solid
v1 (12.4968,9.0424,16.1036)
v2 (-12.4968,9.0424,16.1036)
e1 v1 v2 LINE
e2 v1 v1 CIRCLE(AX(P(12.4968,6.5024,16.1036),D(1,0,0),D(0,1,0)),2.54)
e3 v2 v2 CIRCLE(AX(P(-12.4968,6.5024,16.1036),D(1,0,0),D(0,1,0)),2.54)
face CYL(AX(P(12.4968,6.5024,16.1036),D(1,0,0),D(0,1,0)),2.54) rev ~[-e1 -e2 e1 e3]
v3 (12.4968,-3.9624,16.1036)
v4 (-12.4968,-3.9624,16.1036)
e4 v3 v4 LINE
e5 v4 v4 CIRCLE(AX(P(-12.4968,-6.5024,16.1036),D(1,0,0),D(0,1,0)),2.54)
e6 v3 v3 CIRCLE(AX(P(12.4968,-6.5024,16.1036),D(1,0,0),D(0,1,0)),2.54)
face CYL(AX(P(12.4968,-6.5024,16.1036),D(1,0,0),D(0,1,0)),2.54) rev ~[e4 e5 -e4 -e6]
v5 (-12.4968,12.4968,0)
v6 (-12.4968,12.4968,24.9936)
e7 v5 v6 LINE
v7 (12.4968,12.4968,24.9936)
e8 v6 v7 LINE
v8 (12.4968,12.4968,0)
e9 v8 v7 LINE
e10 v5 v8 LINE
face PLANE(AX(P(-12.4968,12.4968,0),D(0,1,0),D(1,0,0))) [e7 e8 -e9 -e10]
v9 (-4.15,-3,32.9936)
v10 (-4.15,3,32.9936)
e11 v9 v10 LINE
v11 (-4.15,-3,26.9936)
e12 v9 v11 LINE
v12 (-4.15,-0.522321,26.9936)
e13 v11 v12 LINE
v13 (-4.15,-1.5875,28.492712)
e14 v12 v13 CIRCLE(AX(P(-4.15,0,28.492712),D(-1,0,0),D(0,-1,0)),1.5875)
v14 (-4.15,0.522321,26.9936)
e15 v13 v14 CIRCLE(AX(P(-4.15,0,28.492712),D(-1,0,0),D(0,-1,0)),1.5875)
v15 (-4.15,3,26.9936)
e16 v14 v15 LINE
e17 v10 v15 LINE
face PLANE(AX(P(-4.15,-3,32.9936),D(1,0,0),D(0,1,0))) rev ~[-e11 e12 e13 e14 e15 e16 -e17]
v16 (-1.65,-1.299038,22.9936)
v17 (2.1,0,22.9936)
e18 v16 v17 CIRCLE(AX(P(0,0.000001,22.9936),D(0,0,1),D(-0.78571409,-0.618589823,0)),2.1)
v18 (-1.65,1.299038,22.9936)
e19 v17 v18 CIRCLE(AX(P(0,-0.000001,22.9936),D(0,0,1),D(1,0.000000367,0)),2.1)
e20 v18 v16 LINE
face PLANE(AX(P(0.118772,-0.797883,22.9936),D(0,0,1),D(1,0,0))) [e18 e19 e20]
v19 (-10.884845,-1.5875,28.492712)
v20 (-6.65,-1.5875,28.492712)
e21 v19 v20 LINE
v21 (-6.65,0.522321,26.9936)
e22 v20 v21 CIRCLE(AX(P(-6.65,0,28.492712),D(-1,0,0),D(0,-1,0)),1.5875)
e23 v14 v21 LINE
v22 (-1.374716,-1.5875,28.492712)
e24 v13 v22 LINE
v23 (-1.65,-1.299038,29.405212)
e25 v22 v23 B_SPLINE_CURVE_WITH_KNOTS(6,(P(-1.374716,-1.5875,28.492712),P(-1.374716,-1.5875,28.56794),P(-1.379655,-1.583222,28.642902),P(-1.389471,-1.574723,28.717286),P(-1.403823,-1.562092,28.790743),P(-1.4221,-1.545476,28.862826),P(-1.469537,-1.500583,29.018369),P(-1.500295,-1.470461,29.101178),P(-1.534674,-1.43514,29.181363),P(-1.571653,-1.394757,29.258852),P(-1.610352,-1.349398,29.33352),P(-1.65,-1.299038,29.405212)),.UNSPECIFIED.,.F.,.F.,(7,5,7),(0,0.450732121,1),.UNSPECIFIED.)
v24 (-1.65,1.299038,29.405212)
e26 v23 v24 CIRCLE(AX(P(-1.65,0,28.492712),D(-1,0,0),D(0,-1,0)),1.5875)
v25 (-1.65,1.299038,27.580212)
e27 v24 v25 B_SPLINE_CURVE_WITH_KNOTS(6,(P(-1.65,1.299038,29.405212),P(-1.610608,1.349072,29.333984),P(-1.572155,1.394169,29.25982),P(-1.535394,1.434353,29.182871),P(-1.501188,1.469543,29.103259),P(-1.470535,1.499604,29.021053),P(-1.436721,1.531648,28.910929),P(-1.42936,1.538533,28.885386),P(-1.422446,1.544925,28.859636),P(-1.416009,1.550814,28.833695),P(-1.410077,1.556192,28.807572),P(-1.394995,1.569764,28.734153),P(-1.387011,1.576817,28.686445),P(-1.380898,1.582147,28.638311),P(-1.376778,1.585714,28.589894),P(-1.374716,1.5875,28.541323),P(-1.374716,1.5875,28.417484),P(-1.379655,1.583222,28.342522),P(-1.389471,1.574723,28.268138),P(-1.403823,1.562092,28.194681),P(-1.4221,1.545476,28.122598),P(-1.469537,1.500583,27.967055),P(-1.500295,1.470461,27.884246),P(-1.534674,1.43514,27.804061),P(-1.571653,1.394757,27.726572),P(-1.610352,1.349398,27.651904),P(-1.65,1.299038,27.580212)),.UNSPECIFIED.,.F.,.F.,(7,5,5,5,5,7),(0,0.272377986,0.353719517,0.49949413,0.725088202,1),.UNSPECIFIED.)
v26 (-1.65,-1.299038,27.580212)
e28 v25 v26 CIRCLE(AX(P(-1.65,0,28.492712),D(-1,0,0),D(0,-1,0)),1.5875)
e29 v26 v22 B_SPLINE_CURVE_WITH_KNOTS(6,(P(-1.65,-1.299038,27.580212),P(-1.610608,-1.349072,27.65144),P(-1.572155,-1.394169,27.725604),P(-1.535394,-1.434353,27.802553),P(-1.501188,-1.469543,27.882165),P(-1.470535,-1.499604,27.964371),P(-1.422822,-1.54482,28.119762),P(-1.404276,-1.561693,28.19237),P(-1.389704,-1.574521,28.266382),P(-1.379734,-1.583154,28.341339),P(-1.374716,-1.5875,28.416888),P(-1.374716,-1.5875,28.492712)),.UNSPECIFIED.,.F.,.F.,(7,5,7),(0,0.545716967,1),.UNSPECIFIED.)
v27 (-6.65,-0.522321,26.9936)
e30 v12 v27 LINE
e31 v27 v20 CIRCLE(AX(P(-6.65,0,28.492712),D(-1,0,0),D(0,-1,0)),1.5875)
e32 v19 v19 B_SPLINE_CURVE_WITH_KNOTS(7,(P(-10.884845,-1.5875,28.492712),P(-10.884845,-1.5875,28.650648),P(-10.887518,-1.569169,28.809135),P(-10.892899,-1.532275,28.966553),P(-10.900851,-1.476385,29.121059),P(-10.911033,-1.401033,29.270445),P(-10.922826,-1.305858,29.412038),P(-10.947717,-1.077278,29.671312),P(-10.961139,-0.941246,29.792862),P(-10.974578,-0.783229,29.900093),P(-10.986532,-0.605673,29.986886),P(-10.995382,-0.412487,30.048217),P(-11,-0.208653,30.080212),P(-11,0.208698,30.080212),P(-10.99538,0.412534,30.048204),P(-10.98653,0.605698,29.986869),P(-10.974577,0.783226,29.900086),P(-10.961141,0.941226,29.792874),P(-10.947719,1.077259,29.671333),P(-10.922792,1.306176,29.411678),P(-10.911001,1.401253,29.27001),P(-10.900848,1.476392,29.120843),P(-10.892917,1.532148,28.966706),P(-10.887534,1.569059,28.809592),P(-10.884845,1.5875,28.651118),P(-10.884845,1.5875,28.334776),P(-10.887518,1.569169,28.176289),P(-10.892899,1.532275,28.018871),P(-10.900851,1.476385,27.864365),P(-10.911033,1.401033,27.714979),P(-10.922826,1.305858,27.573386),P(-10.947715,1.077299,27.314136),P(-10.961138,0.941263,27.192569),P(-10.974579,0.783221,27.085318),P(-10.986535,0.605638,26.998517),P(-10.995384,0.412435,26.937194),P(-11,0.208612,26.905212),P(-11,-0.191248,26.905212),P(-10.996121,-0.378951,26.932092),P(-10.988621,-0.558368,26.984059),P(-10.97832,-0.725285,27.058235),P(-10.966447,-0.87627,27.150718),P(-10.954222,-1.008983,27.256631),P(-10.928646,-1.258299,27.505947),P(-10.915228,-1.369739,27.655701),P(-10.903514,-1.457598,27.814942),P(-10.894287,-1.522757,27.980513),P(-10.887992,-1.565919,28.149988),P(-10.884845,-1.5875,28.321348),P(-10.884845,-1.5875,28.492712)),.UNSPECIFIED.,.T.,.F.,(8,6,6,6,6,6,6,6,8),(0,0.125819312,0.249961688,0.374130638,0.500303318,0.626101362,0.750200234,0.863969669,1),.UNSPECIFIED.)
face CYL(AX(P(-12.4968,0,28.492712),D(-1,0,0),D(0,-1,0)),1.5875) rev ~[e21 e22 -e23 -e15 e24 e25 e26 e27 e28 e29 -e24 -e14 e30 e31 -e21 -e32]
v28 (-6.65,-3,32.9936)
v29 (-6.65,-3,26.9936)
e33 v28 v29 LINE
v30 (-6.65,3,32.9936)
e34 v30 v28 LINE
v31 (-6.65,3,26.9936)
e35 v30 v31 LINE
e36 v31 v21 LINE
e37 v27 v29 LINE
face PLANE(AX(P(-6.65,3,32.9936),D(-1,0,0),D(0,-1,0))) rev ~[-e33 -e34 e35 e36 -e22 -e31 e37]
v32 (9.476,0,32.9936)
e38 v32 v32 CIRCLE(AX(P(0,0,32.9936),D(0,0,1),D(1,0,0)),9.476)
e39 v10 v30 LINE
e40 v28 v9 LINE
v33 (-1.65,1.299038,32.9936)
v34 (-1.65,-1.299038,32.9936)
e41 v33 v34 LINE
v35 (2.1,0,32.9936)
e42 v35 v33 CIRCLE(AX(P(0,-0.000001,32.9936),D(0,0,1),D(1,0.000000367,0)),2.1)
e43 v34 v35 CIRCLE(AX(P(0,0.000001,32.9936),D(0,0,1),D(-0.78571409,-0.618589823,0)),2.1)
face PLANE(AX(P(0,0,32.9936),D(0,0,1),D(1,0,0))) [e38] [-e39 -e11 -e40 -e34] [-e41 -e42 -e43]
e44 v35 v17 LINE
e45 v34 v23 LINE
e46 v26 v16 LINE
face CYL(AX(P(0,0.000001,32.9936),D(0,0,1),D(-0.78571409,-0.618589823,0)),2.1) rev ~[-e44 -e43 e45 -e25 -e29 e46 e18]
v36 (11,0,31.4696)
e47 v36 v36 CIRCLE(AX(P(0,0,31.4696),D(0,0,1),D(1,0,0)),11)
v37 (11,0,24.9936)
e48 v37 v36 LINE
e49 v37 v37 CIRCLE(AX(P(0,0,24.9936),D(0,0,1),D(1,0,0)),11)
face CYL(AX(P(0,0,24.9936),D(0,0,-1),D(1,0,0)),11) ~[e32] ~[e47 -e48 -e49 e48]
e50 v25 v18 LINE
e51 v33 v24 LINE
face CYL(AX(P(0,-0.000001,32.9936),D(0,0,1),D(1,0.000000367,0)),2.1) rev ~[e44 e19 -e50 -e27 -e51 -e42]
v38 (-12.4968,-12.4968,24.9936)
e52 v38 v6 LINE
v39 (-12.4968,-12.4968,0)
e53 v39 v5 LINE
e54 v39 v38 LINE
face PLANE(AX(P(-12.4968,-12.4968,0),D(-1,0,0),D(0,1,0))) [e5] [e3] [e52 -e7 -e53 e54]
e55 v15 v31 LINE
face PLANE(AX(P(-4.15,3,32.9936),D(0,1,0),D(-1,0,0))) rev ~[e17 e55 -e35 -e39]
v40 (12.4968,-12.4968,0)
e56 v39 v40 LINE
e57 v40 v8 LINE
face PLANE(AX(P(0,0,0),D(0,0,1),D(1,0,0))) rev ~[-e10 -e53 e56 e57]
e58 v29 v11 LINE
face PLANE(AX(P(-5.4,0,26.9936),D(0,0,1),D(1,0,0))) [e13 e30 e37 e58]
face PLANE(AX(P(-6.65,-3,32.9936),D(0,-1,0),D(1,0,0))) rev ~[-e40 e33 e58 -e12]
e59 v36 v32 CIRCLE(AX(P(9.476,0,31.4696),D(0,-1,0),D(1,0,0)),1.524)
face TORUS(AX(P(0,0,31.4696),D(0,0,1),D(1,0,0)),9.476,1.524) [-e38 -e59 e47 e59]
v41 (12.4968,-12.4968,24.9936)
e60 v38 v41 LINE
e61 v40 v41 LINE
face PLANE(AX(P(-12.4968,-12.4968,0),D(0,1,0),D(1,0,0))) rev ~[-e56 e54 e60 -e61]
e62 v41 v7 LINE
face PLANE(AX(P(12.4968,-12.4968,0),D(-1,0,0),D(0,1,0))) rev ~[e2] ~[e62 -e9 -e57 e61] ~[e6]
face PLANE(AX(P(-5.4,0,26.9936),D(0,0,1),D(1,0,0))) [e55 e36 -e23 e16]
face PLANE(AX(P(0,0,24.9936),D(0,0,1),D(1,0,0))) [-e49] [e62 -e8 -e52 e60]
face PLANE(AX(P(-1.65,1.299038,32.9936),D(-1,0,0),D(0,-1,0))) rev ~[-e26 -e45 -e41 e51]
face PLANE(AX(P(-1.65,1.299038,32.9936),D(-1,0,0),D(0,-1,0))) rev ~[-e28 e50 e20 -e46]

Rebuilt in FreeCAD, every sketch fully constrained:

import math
import FreeCAD as App
import Part
import Sketcher


def edges_at(feature, points):
    """Names of the edges that pass closest to the given points."""
    edges = feature.Shape.Edges
    near = lambda p: min(range(len(edges)), key=lambda i: edges[i].distToShape(Part.Vertex(*p))[0])
    return sorted({f"Edge{near(p) + 1}" for p in points})

doc = App.newDocument("Part")
params = doc.addObject("Spreadsheet::Sheet", "Params")
for row, (alias, value) in enumerate([
    ("pad1_length", "24.9936 mm"),
    ("sketch2_diameter", "22 mm"),
    ("pad2_length", "8 mm"),
    ("fillet_radius", "1.524 mm"),
    ("sketch3_radius", "2.1 mm"),
    ("pocket1_length", "10 mm"),
    ("sketch4_height", "6 mm"),
    ("sketch4_width", "2.5 mm"),
    ("pocket2_length", "6 mm"),
    ("pocket3_length", "11.684 mm"),
    ("sketch6_diameter", "5.08 mm"),
    ("pocket4_length", "25.4 mm"),
], start=1):
    params.set(f"A{row}", alias)
    params.set(f"B{row}", "=" + value)
    params.setAlias(f"B{row}", alias)

body = doc.addObject("PartDesign::Body", "Body")

sketch1 = body.newObject("Sketcher::SketchObject", "Sketch")
sketch1.AttachmentSupport = (doc.getObject("XY_Plane"), [""])
sketch1.MapMode = "FlatFace"
sketch1.addGeometry([
    Part.LineSegment(App.Vector(-12, 12, 0), App.Vector(-12, -12, 0)),
    Part.LineSegment(App.Vector(-12, -12, 0), App.Vector(12, -12, 0)),
    Part.LineSegment(App.Vector(12, -12, 0), App.Vector(12, 12, 0)),
    Part.LineSegment(App.Vector(12, 12, 0), App.Vector(-12, 12, 0)),
], False)
sketch1.addConstraint([
    Sketcher.Constraint("Coincident", 0, 2, 1, 1),
    Sketcher.Constraint("Coincident", 1, 2, 2, 1),
    Sketcher.Constraint("Coincident", 2, 2, 3, 1),
    Sketcher.Constraint("Coincident", 3, 2, 0, 1),
    Sketcher.Constraint("Vertical", 0),
    Sketcher.Constraint("Horizontal", 1),
    Sketcher.Constraint("Vertical", 2),
    Sketcher.Constraint("Horizontal", 3),
    Sketcher.Constraint("Symmetric", 0, 2, 2, 2, -1, 1),
    Sketcher.Constraint("Equal", 3, 0),
    Sketcher.Constraint("DistanceX", 1, 1, 1, 2, 24.9936),
])
pad1 = body.newObject("PartDesign::Pad", "Pad")
pad1.Profile = sketch1
pad1.setExpression("Length", "Params.pad1_length")

sketch2 = body.newObject("Sketcher::SketchObject", "Sketch001")
sketch2.AttachmentSupport = (doc.getObject("XY_Plane"), [""])
sketch2.MapMode = "FlatFace"
sketch2.AttachmentOffset = App.Placement(App.Vector(0, 0, 24.9936), App.Rotation())
sketch2.addGeometry(Part.Circle(App.Vector(0, 0, 0), App.Vector(0, 0, 1), 11), False)
sketch2.addConstraint([
    Sketcher.Constraint("Coincident", 0, 3, -1, 1),
    Sketcher.Constraint("Diameter", 0, 22.0),
])
sketch2.setExpression("Constraints[1]", "Params.sketch2_diameter")
pad2 = body.newObject("PartDesign::Pad", "Pad001")
pad2.Profile = sketch2
pad2.setExpression("Length", "Params.pad2_length")
doc.recompute()

fillet = body.newObject("PartDesign::Fillet", "Fillet")
fillet.Base = (pad2, edges_at(pad2, [(-11, 0, 32.994)]))
fillet.setExpression("Radius", "Params.fillet_radius")

sketch3 = body.newObject("Sketcher::SketchObject", "Sketch002")
sketch3.AttachmentSupport = (doc.getObject("XY_Plane"), [""])
sketch3.MapMode = "FlatFace"
sketch3.AttachmentOffset = App.Placement(App.Vector(0, 0, 32.9936), App.Rotation())
sketch3.addGeometry([
    Part.ArcOfCircle(Part.Circle(App.Vector(0, 0, 0), App.Vector(0, 0, 1), 2.1), math.radians(-142), math.radians(0)),
    Part.ArcOfCircle(Part.Circle(App.Vector(0, 0, 0), App.Vector(0, 0, 1), 2.1), math.radians(0), math.radians(142)),
    Part.LineSegment(App.Vector(-1.6, 1.3, 0), App.Vector(-1.6, -1.3, 0)),
], False)
sketch3.addConstraint([
    Sketcher.Constraint("Tangent", 0, 2, 1, 1),
    Sketcher.Constraint("Coincident", 1, 2, 2, 1),
    Sketcher.Constraint("Coincident", 2, 2, 0, 1),
    Sketcher.Constraint("Vertical", 2),
    Sketcher.Constraint("Coincident", 0, 3, -1, 1),
    Sketcher.Constraint("Equal", 0, 1),
    Sketcher.Constraint("PointOnObject", 0, 2, -1),
    Sketcher.Constraint("Radius", 0, 2.1),
    Sketcher.Constraint("DistanceX", 1, 2, -1, 1, 1.65),
])
sketch3.setExpression("Constraints[7]", "Params.sketch3_radius")
pocket1 = body.newObject("PartDesign::Pocket", "Pocket")
pocket1.Profile = sketch3
pocket1.setExpression("Length", "Params.pocket1_length")

sketch4 = body.newObject("Sketcher::SketchObject", "Sketch003")
sketch4.AttachmentSupport = (doc.getObject("XY_Plane"), [""])
sketch4.MapMode = "FlatFace"
sketch4.AttachmentOffset = App.Placement(App.Vector(0, 0, 32.9936), App.Rotation())
sketch4.addGeometry([
    Part.LineSegment(App.Vector(-4.2, 3, 0), App.Vector(-6.7, 3, 0)),
    Part.LineSegment(App.Vector(-6.7, 3, 0), App.Vector(-6.7, -3, 0)),
    Part.LineSegment(App.Vector(-6.7, -3, 0), App.Vector(-4.2, -3, 0)),
    Part.LineSegment(App.Vector(-4.2, -3, 0), App.Vector(-4.2, 3, 0)),
], False)
sketch4.addConstraint([
    Sketcher.Constraint("Coincident", 0, 2, 1, 1),
    Sketcher.Constraint("Coincident", 1, 2, 2, 1),
    Sketcher.Constraint("Coincident", 2, 2, 3, 1),
    Sketcher.Constraint("Coincident", 3, 2, 0, 1),
    Sketcher.Constraint("Horizontal", 0),
    Sketcher.Constraint("Vertical", 1),
    Sketcher.Constraint("Horizontal", 2),
    Sketcher.Constraint("Vertical", 3),
    Sketcher.Constraint("DistanceY", 1, 2, 1, 1, 6.0),
    Sketcher.Constraint("DistanceX", 0, 2, 0, 1, 2.5),
    Sketcher.Constraint("DistanceY", -1, 1, 0, 2, 3.0),
    Sketcher.Constraint("DistanceX", 0, 2, -1, 1, 6.65),
])
sketch4.setExpression("Constraints[8]", "Params.sketch4_height")
sketch4.setExpression("Constraints[9]", "Params.sketch4_width")
pocket2 = body.newObject("PartDesign::Pocket", "Pocket001")
pocket2.Profile = sketch4
pocket2.setExpression("Length", "Params.pocket2_length")

sketch5 = body.newObject("Sketcher::SketchObject", "Sketch004")
sketch5.AttachmentSupport = (doc.getObject("YZ_Plane"), [""])
sketch5.MapMode = "FlatFace"
sketch5.AttachmentOffset = App.Placement(App.Vector(0, 0, -12.4968), App.Rotation())
sketch5.addGeometry(Part.Circle(App.Vector(0, 28.5, 0), App.Vector(0, 0, 1), 1.6), False)
sketch5.addConstraint([
    Sketcher.Constraint("PointOnObject", 0, 3, -2),
    Sketcher.Constraint("Diameter", 0, 3.175),
    Sketcher.Constraint("DistanceY", -1, 1, 0, 3, 28.492712),
])
pocket3 = body.newObject("PartDesign::Pocket", "Pocket002")
pocket3.Profile = sketch5
pocket3.setExpression("Length", "Params.pocket3_length")
pocket3.Reversed = True

sketch6 = body.newObject("Sketcher::SketchObject", "Sketch005")
sketch6.AttachmentSupport = (doc.getObject("YZ_Plane"), [""])
sketch6.MapMode = "FlatFace"
sketch6.AttachmentOffset = App.Placement(App.Vector(0, 0, 12.4968), App.Rotation())
sketch6.addGeometry([
    Part.Circle(App.Vector(-6.5, 16.1, 0), App.Vector(0, 0, 1), 2.5),
    Part.Circle(App.Vector(6.5, 16.1, 0), App.Vector(0, 0, 1), 2.5),
], False)
sketch6.addConstraint([
    Sketcher.Constraint("Equal", 0, 1),
    Sketcher.Constraint("Symmetric", 0, 3, 1, 3, -2),
    Sketcher.Constraint("Diameter", 0, 5.08),
    Sketcher.Constraint("DistanceX", 0, 3, -1, 1, 6.5024),
    Sketcher.Constraint("DistanceY", -1, 1, 0, 3, 16.1036),
])
sketch6.setExpression("Constraints[2]", "Params.sketch6_diameter")
pocket4 = body.newObject("PartDesign::Pocket", "Pocket003")
pocket4.Profile = sketch6
pocket4.setExpression("Length", "Params.pocket4_length")

doc.recompute()
